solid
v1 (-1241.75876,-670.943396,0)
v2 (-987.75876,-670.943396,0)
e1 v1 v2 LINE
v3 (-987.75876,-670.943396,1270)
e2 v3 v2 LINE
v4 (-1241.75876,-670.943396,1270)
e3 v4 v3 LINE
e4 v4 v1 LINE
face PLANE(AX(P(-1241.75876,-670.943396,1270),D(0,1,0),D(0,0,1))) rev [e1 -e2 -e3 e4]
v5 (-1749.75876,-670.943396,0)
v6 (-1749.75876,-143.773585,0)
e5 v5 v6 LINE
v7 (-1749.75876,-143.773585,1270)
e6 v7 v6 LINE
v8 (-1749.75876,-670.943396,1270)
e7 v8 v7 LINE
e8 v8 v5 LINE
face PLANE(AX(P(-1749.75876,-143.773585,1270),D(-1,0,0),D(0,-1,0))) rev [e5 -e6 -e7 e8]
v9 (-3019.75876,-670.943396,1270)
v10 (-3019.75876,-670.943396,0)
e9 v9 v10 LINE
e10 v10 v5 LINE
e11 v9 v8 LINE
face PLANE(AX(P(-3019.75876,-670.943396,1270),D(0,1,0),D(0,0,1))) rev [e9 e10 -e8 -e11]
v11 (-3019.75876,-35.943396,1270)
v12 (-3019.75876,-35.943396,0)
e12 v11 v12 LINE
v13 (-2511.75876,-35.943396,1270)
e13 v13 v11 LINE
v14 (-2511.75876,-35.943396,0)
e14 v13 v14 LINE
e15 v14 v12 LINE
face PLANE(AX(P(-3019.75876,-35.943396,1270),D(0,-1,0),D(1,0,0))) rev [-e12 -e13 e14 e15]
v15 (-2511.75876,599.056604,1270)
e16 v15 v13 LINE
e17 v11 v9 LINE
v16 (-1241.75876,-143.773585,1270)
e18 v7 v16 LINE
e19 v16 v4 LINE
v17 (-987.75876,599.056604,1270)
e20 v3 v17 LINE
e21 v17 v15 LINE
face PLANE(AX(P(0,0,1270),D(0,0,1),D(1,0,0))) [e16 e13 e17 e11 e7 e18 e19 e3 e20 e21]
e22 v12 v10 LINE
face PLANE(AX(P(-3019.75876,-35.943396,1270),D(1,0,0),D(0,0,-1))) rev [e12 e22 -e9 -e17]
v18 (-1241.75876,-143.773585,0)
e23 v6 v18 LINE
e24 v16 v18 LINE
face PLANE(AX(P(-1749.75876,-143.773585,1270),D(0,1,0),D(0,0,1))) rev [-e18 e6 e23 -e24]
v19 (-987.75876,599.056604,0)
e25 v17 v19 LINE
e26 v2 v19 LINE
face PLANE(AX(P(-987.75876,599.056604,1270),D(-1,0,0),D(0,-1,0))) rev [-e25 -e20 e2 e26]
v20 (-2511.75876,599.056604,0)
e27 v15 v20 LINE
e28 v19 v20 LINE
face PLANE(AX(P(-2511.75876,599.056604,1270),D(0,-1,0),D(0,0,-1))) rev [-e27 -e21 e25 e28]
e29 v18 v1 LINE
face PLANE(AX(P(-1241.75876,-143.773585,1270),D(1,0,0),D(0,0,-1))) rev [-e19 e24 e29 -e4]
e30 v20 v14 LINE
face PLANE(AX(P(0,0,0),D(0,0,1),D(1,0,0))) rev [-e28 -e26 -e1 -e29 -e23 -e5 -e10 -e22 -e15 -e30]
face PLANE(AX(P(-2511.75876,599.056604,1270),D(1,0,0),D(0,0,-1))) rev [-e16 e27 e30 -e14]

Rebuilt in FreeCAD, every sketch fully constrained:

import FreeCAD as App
import Part
import Sketcher
from FreeCAD import Vector
Q = App.Units.Quantity


def add_polygon(sketch, points):
    """Adds a closed chain of lines whose ends are joined by coincident constraints."""
    first, n = sketch.GeometryCount, len(points)
    for a, b in zip(points, points[1:] + points[:1]):
        sketch.addGeometry(Part.LineSegment(App.Vector(*a, 0), App.Vector(*b, 0)), False)
    for i in range(n):
        sketch.addConstraint(Sketcher.Constraint("Coincident", first + i, 2, first + (i + 1) % n, 1))

doc = App.newDocument("Part")
params = doc.addObject("Spreadsheet::Sheet", "Params")
for row, (alias, value) in enumerate([
    ("sketch1_width", "10 in"),
    ("sketch1_width2", "60 in"),
    ("sketch1_width3", "20 in"),
    ("pad1_length", "50 in"),
], start=1):
    params.set(f"A{row}", alias)
    params.set(f"B{row}", "=" + value)
    params.setAlias(f"B{row}", alias)

body = doc.addObject("PartDesign::Body", "Body")

sketch1 = doc.addObject("Sketcher::SketchObject", "Sketch")
body.addObject(sketch1)
sketch1.AttachmentSupport = (doc.XY_Plane, [""])
sketch1.MapMode = "FlatFace"
add_polygon(sketch1, [(-1242, -671), (-988, -671), (-988, 599), (-2512, 599), (-2512, -36), (-3020, -36), (-3020, -671), (-1750, -671), (-1750, -144), (-1242, -144)])
sketch1.addConstraint([
    Sketcher.Constraint("Horizontal", 0),
    Sketcher.Constraint("Vertical", 1),
    Sketcher.Constraint("Horizontal", 2),
    Sketcher.Constraint("Vertical", 3),
    Sketcher.Constraint("Horizontal", 4),
    Sketcher.Constraint("Vertical", 5),
    Sketcher.Constraint("Horizontal", 6),
    Sketcher.Constraint("Vertical", 7),
    Sketcher.Constraint("Horizontal", 8),
    Sketcher.Constraint("Vertical", 9),
    Sketcher.Constraint("Horizontal", 0, 2, 5, 2),
    Sketcher.Constraint("Equal", 4, 8),
    Sketcher.Constraint("Equal", 6, 1),
    Sketcher.Constraint("Equal", 3, 5),
    Sketcher.Constraint("DistanceX", 0, 1, 0, 2, Q("10 in")),
    Sketcher.Constraint("DistanceX", 2, 2, 2, 1, Q("60 in")),
    Sketcher.Constraint("DistanceX", 4, 2, 4, 1, Q("20 in")),
    Sketcher.Constraint("DistanceY", 7, 1, 7, 2, 527.169811),
    Sketcher.Constraint("DistanceX", 0, 2, -1, 1, 987.75876),
    Sketcher.Constraint("DistanceY", 0, 2, -1, 1, 670.943396),
])
sketch1.setExpression("Constraints[24]", "Params.sketch1_width")
sketch1.setExpression("Constraints[25]", "Params.sketch1_width2")
sketch1.setExpression("Constraints[26]", "Params.sketch1_width3")
pad1 = doc.addObject("PartDesign::Pad", "Pad")
body.addObject(pad1)
pad1.Profile = sketch1
pad1.setExpression("Length", "Params.pad1_length")

doc.recompute()
